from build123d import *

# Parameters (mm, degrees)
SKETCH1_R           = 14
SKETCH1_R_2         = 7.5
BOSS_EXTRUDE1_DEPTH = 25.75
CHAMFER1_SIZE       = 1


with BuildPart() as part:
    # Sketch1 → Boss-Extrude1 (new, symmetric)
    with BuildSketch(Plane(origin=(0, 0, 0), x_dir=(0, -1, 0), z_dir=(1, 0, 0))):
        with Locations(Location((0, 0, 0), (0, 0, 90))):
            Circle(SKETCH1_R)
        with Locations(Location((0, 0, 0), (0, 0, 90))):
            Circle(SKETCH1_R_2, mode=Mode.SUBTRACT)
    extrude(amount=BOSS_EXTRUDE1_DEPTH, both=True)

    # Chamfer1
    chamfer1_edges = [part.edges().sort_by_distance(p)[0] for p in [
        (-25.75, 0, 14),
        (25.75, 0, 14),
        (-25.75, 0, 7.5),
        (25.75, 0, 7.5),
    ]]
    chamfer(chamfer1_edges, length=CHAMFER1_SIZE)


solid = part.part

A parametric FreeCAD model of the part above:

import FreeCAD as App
import Part
import Sketcher
from FreeCAD import Vector
Q = App.Units.Quantity


def edges_at(feature, points):
    """Names of the edges that pass closest to the given points."""
    edges = feature.Shape.Edges
    near = lambda p: min(range(len(edges)), key=lambda i: edges[i].distToShape(Part.Vertex(*p))[0])
    return sorted({f"Edge{near(p) + 1}" for p in points})

doc = App.newDocument("Part")
body = doc.addObject("PartDesign::Body", "Body")

# Sketch on YZ plane
sketch1 = body.newObject("Sketcher::SketchObject", "Sketch")
sketch1.AttachmentSupport = (doc.getObject("YZ_Plane"), [""])
sketch1.MapMode = "FlatFace"
sketch1.addGeometry([
    Part.Circle(Vector(0, 0, 0), Vector(0, 0, 1), 14),
    Part.Circle(Vector(0, 0, 0), Vector(0, 0, 1), 8),
], False)
sketch1.addConstraint([
    Sketcher.Constraint("Coincident", 0, 3, -1, 1),
    Sketcher.Constraint("Coincident", 1, 3, -1, 1),
    Sketcher.Constraint("Diameter", 0, Q("28 mm")),
    Sketcher.Constraint("Diameter", 1, Q("15 mm")),
])
pad1 = body.newObject("PartDesign::Pad", "Pad")
pad1.Profile = sketch1
pad1.Length = 51.5
pad1.Midplane = True
doc.recompute()

chamfer = body.newObject("PartDesign::Chamfer", "Chamfer")
chamfer.Base = (pad1, edges_at(pad1, [
    (-25.75, 0, 14),
    (25.75, 0, 14),
    (-25.75, 0, 7.5),
    (25.75, 0, 7.5),
]))
chamfer.Size = 1

doc.recompute()
